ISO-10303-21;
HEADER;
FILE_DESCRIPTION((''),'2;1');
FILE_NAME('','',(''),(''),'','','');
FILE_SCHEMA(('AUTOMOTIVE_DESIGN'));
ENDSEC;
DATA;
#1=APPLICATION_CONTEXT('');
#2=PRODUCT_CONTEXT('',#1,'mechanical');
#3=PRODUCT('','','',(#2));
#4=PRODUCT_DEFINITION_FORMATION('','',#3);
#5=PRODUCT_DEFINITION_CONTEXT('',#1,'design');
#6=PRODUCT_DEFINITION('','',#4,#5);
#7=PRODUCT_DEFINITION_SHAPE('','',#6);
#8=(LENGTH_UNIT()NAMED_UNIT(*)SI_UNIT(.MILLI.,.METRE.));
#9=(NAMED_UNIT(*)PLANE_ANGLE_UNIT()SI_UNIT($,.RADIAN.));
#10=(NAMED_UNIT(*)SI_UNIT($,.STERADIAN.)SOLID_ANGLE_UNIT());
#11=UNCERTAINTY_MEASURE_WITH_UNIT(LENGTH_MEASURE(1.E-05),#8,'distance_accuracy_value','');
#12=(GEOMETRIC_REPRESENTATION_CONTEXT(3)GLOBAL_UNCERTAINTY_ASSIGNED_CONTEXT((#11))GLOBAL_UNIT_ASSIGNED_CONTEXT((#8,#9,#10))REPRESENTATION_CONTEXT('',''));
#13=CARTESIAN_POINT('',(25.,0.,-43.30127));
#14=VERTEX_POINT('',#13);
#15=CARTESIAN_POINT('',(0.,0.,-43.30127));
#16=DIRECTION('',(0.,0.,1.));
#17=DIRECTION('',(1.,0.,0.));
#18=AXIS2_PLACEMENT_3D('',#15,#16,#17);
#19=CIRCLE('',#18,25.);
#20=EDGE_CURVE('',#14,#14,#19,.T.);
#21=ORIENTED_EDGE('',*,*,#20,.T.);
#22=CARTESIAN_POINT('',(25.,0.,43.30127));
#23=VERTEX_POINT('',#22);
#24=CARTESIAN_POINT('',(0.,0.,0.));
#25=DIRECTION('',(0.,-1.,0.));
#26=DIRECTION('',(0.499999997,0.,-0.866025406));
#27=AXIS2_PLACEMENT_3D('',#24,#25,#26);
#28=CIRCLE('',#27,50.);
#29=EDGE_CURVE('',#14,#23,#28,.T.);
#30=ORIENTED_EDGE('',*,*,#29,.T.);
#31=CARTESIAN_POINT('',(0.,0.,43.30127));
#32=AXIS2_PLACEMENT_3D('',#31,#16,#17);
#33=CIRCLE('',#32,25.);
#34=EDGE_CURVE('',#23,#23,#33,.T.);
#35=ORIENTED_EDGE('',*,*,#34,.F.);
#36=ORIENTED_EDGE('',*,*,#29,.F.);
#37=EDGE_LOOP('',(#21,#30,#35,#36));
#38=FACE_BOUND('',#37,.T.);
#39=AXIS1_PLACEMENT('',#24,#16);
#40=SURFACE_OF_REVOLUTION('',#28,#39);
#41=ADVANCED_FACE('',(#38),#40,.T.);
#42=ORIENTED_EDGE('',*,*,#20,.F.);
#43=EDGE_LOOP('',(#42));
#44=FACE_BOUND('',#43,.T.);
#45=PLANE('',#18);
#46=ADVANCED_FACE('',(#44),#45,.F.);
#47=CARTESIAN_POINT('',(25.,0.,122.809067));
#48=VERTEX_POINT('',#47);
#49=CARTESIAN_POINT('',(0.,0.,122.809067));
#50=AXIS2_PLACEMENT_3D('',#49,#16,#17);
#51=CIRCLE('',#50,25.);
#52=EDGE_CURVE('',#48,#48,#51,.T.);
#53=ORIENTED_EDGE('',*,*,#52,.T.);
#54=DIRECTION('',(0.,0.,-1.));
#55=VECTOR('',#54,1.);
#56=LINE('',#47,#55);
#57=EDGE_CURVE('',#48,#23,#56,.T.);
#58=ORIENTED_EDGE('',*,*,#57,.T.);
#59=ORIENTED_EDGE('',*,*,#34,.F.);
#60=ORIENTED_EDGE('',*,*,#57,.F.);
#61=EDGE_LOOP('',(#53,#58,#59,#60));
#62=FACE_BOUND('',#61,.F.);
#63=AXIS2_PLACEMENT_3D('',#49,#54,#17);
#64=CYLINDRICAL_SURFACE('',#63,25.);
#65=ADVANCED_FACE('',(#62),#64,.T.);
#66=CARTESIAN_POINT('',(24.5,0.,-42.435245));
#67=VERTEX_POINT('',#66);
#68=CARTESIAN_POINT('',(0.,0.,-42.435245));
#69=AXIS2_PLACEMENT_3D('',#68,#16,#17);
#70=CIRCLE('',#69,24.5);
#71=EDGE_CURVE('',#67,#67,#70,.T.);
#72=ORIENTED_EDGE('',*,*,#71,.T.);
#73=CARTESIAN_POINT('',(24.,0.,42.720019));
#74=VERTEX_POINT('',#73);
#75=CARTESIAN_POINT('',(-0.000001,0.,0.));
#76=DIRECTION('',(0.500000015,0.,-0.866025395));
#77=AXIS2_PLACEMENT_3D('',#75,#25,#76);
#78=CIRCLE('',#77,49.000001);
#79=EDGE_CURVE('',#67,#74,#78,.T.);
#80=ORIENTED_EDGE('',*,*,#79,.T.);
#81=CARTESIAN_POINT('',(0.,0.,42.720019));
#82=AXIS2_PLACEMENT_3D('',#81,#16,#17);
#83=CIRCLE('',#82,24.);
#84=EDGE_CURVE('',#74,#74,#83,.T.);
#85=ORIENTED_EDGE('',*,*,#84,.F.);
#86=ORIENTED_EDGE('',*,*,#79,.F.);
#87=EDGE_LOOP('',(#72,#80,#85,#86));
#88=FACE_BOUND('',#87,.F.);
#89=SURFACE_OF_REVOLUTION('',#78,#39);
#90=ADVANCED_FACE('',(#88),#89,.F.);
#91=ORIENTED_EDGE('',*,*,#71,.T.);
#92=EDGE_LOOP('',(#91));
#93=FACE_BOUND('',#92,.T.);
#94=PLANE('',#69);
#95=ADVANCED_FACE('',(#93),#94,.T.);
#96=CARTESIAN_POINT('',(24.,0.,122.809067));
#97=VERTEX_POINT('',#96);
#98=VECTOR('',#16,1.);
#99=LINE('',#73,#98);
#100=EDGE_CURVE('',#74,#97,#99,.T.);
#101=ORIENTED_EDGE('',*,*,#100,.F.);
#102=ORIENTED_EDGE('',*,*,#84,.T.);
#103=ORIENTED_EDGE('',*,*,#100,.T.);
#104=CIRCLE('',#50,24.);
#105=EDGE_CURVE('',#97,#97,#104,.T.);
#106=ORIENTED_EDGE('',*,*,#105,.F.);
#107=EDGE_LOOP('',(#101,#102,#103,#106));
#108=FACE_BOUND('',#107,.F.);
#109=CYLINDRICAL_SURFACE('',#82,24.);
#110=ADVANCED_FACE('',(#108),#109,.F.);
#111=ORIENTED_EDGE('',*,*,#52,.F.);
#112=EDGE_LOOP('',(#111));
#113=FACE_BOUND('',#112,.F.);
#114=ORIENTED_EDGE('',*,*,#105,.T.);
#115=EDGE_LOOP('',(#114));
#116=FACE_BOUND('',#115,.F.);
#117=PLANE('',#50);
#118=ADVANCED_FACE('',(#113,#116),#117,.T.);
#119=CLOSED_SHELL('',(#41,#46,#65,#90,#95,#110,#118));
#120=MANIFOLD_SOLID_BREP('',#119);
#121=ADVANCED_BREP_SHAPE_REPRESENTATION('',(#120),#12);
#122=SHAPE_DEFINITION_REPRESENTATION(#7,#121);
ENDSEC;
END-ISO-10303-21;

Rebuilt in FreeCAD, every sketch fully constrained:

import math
import FreeCAD as App
import Part
import Sketcher
from FreeCAD import Vector

doc = App.newDocument("Part")
body = doc.addObject("PartDesign::Body", "Body")

# Sketch on XZ plane
sketch1 = body.newObject("Sketcher::SketchObject", "Sketch")
sketch1.AttachmentSupport = (doc.getObject("XZ_Plane"), [""])
sketch1.MapMode = "FlatFace"
sketch1.addGeometry(Part.ArcOfCircle(Part.Circle(Vector(0, 0, 0), Vector(0, 0, 1), 50), math.radians(-60), math.radians(60)), False)
sketch1.addGeometry(Part.LineSegment(Vector(25, 43.30127, 0), Vector(25, 122.809067, 0)), False)
sketch1.addGeometry(Part.LineSegment(Vector(25, 122.809067, 0), Vector(24, 122.809067, 0)), False)
sketch1.addGeometry(Part.LineSegment(Vector(24, 122.809067, 0), Vector(24, 42.720019, 0)), False)
sketch1.addGeometry(Part.ArcOfCircle(Part.Circle(Vector(-0.000001, 0, 0), Vector(0, 0, 1), 49.000001), math.radians(-59.999999), math.radians(60.67283)), False)
sketch1.addGeometry(Part.LineSegment(Vector(24.5, -42.435245, 0), Vector(0, -42.435245, 0)), False)
sketch1.addGeometry(Part.LineSegment(Vector(0, -42.435245, 0), Vector(0, -43.30127, 0)), False)
sketch1.addGeometry(Part.LineSegment(Vector(0, -43.30127, 0), Vector(25, -43.30127, 0)), False)
sketch1.addConstraint(Sketcher.Constraint("Coincident", 0, 2, 1, 1))
sketch1.addConstraint(Sketcher.Constraint("Coincident", 1, 2, 2, 1))
sketch1.addConstraint(Sketcher.Constraint("Coincident", 2, 2, 3, 1))
sketch1.addConstraint(Sketcher.Constraint("Coincident", 3, 2, 4, 2))
sketch1.addConstraint(Sketcher.Constraint("Coincident", 4, 1, 5, 1))
sketch1.addConstraint(Sketcher.Constraint("Coincident", 5, 2, 6, 1))
sketch1.addConstraint(Sketcher.Constraint("Coincident", 6, 2, 7, 1))
sketch1.addConstraint(Sketcher.Constraint("Coincident", 7, 2, 0, 1))
sketch1.addConstraint(Sketcher.Constraint("Vertical", 1))
sketch1.addConstraint(Sketcher.Constraint("Horizontal", 2))
sketch1.addConstraint(Sketcher.Constraint("Vertical", 3))
sketch1.addConstraint(Sketcher.Constraint("Horizontal", 5))
sketch1.addConstraint(Sketcher.Constraint("Vertical", 6))
sketch1.addConstraint(Sketcher.Constraint("Horizontal", 7))
sketch1.addConstraint(Sketcher.Constraint("Coincident", 0, 3, -1, 1))
sketch1.addConstraint(Sketcher.Constraint("Coincident", 4, 3, -1, 1))
sketch1.addConstraint(Sketcher.Constraint("PointOnObject", 5, 2, -2))
sketch1.addConstraint(Sketcher.Constraint("Vertical", 1, 2, 7, 2))
sketch1.addConstraint(Sketcher.Constraint("Radius", 0, 50.0))
sketch1.addConstraint(Sketcher.Constraint("Radius", 4, 49.000001))
sketch1.addConstraint(Sketcher.Constraint("DistanceX", 2, 2, 2, 1, 1.0))
sketch1.addConstraint(Sketcher.Constraint("DistanceX", 7, 1, 7, 2, 25.0))
sketch1.addConstraint(Sketcher.Constraint("DistanceX", 5, 2, 5, 1, 24.5))
sketch1.addConstraint(Sketcher.Constraint("DistanceY", 1, 1, 1, 2, 79.507797))
revolution = body.newObject("PartDesign::Revolution", "Revolution")
revolution.Profile = sketch1
revolution.ReferenceAxis = (sketch1, ["V_Axis"])
revolution.Angle = 360

doc.recompute()
